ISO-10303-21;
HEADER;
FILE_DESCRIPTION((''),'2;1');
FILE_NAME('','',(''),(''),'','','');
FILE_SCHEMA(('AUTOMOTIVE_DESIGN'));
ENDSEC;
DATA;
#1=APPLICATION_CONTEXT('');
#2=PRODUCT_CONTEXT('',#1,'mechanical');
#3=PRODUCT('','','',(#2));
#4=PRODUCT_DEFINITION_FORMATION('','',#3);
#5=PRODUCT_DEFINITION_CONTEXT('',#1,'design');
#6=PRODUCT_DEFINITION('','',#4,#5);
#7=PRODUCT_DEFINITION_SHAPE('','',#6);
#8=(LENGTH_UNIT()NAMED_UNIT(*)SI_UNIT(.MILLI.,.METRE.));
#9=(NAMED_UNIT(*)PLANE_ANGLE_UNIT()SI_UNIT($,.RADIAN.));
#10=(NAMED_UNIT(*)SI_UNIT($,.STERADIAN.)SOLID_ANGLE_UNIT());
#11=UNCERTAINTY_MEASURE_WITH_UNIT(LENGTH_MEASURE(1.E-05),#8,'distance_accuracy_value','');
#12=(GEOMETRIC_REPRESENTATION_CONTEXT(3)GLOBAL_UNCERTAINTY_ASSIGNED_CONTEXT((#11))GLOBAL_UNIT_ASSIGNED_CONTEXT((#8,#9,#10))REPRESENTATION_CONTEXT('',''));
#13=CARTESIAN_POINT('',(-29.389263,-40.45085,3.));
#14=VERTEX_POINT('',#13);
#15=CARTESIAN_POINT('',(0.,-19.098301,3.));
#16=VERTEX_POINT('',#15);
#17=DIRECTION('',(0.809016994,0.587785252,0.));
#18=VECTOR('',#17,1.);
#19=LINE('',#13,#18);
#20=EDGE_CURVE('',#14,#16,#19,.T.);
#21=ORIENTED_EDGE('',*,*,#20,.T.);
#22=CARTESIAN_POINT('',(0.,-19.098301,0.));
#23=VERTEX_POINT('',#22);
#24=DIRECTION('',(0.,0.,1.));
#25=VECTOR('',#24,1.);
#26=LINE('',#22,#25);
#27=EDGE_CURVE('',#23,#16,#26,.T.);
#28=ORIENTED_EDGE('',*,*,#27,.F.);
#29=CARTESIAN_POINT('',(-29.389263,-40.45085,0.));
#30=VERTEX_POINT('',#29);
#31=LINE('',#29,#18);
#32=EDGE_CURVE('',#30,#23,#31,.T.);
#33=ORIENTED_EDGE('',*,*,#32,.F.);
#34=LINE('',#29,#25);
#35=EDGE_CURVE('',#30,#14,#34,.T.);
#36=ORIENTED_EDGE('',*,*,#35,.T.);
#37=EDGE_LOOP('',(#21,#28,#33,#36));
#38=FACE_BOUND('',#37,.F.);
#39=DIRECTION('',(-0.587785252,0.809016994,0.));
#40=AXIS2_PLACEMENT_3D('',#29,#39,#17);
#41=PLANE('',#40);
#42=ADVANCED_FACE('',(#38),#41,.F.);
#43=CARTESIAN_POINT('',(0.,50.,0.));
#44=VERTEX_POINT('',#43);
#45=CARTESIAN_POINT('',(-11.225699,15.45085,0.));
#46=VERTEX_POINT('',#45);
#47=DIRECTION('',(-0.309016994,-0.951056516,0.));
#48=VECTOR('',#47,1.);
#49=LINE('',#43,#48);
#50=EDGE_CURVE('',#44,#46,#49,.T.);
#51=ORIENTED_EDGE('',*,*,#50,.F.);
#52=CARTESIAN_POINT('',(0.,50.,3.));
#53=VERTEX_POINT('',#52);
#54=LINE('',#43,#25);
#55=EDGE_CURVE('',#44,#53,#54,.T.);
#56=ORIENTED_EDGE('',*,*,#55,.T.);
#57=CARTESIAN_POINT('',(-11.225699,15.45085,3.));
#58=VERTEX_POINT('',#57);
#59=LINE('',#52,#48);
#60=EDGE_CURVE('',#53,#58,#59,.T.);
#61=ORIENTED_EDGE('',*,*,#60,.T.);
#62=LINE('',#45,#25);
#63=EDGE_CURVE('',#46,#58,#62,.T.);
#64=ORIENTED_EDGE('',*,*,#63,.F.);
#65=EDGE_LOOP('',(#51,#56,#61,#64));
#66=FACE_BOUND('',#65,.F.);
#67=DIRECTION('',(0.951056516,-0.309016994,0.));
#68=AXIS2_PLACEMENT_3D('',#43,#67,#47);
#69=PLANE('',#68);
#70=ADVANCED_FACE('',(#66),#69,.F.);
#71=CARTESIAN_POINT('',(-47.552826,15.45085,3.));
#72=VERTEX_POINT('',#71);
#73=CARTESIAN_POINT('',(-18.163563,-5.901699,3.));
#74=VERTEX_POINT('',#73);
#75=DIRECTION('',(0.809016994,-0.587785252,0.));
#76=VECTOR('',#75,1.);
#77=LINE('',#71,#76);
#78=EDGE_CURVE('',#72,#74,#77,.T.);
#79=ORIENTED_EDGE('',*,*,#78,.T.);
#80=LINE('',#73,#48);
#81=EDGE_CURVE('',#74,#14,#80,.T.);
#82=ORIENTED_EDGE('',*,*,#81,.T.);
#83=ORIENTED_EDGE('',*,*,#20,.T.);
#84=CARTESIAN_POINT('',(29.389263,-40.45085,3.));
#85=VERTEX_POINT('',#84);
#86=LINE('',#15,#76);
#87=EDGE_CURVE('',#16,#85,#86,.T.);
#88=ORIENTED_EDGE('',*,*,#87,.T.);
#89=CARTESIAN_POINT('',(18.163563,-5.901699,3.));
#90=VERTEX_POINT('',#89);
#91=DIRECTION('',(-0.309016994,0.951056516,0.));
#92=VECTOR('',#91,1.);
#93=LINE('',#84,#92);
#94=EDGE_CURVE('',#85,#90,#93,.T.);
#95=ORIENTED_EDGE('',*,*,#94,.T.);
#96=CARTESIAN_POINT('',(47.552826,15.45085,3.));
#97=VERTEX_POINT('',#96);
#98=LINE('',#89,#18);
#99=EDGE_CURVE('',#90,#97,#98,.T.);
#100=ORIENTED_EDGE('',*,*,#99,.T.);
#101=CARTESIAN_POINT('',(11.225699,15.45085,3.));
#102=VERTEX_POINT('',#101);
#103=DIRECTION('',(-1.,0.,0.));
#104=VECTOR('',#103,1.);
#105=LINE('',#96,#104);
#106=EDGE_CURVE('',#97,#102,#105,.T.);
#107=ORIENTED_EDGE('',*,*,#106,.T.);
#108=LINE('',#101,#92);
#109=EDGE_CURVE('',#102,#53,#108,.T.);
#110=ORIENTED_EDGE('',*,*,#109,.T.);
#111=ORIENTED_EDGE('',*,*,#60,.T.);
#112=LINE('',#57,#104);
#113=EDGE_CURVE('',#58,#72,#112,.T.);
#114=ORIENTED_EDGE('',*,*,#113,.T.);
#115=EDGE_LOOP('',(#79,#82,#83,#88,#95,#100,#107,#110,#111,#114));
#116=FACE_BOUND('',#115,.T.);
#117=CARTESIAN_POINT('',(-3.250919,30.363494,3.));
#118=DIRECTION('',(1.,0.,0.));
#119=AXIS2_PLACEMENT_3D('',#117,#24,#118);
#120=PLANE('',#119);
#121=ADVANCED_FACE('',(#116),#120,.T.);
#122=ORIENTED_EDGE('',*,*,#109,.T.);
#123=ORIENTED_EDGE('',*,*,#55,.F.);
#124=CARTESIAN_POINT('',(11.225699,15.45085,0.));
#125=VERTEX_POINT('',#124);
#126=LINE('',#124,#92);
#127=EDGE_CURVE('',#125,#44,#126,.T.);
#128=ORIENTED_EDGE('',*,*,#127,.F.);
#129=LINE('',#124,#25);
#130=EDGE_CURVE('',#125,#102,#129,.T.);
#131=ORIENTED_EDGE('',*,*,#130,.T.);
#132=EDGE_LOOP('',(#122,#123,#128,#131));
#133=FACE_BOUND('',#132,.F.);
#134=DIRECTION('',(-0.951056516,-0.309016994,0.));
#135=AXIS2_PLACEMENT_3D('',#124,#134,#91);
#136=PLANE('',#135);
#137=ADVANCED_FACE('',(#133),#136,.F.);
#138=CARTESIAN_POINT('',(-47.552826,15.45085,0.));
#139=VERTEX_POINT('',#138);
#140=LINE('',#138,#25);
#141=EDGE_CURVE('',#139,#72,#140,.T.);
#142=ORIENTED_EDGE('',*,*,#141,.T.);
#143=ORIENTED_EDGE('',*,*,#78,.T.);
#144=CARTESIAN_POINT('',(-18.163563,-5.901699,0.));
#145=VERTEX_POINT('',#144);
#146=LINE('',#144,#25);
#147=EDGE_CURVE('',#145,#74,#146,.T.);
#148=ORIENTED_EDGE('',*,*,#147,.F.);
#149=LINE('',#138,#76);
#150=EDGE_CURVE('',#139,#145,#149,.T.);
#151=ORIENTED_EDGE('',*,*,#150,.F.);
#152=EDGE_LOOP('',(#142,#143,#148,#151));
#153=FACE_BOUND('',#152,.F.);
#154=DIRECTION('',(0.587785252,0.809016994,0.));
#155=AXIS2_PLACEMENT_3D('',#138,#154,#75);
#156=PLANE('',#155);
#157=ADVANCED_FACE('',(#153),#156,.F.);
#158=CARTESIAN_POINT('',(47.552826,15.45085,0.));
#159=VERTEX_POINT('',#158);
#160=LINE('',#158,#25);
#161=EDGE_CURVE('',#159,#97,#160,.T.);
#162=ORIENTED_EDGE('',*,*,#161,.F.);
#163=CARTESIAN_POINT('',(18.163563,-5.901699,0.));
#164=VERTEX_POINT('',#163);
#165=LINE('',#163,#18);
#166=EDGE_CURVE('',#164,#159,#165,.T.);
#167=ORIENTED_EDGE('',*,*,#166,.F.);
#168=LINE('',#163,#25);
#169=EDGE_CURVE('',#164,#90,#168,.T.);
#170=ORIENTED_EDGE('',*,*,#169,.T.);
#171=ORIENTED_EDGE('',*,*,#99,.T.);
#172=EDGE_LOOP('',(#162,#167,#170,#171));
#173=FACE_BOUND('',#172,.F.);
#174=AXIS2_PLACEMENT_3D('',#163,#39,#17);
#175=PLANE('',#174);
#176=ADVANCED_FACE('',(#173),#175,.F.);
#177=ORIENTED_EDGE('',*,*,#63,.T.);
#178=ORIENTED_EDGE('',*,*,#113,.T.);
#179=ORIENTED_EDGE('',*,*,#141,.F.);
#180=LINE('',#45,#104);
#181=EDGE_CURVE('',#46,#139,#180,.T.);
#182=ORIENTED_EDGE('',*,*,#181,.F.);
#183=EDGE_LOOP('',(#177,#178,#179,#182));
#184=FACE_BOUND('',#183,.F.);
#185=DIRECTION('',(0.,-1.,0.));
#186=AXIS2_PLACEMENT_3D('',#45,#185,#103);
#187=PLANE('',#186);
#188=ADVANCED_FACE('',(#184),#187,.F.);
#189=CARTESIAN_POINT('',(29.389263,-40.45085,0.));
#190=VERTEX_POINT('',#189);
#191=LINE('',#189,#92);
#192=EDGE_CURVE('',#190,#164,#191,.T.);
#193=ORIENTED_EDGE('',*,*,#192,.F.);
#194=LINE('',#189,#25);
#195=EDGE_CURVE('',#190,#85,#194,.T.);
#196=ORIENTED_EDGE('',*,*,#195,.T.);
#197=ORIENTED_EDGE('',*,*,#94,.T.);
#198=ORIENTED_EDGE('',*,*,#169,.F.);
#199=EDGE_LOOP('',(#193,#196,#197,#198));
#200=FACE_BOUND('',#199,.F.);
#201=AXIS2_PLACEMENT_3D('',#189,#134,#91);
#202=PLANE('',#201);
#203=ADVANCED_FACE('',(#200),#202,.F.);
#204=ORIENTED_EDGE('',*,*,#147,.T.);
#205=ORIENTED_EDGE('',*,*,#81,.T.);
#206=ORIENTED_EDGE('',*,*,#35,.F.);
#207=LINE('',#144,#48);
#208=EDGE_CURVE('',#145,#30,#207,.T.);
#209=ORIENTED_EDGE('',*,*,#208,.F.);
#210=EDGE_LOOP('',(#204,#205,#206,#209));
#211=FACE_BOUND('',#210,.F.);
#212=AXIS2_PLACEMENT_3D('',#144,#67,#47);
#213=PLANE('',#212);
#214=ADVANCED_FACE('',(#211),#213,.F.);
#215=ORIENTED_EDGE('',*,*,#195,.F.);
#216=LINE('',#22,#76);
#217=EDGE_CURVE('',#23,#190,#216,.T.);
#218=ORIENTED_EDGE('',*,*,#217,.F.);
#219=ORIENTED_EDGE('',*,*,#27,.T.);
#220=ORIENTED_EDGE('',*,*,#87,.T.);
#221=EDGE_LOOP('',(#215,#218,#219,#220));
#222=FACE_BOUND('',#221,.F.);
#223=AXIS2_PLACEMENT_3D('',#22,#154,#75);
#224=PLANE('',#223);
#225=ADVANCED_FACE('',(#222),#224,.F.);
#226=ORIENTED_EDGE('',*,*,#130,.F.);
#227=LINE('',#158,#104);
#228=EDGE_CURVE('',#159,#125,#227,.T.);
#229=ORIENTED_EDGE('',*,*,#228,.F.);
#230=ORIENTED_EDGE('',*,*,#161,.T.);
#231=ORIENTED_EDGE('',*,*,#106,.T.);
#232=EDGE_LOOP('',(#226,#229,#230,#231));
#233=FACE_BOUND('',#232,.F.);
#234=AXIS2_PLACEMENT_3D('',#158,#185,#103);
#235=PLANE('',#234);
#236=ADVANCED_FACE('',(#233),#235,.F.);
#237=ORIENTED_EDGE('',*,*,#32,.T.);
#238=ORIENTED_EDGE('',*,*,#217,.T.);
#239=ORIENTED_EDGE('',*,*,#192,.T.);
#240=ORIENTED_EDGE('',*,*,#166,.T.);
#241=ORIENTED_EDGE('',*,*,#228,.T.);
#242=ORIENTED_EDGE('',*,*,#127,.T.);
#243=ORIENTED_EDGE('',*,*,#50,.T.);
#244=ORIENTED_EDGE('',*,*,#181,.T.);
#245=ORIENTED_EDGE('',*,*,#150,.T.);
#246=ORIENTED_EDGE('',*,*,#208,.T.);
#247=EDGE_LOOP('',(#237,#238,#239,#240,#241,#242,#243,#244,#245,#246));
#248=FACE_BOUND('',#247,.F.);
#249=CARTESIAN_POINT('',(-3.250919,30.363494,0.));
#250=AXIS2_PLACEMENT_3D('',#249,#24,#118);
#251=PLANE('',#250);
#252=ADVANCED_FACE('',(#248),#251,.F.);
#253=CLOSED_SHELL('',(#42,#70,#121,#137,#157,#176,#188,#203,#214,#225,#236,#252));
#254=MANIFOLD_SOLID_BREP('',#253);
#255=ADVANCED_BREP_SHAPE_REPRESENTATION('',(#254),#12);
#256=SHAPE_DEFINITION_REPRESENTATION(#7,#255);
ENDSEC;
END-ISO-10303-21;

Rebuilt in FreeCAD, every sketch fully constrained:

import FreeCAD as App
import Part
import Sketcher
Q = App.Units.Quantity

doc = App.newDocument("Part")
body = doc.addObject("PartDesign::Body", "Body")

# Sketch on XY plane
sketch1 = body.newObject("Sketcher::SketchObject", "Sketch")
sketch1.AttachmentSupport = (doc.getObject("XY_Plane"), [""])
sketch1.MapMode = "FlatFace"
sketch1.addGeometry([
    Part.LineSegment(App.Vector(29, -40, 0), App.Vector(18, -6, 0)),  # 0
    Part.LineSegment(App.Vector(18, -6, 0), App.Vector(48, 15, 0)),  # 1
    Part.LineSegment(App.Vector(48, 15, 0), App.Vector(11, 15, 0)),  # 2
    Part.LineSegment(App.Vector(11, 15, 0), App.Vector(0, 50, 0)),  # 3
    Part.LineSegment(App.Vector(0, 50, 0), App.Vector(-11, 15, 0)),  # 4
    Part.LineSegment(App.Vector(-11, 15, 0), App.Vector(-48, 15, 0)),  # 5
    Part.LineSegment(App.Vector(-48, 15, 0), App.Vector(-18, -6, 0)),  # 6
    Part.LineSegment(App.Vector(-18, -6, 0), App.Vector(-29, -40, 0)),  # 7
    Part.LineSegment(App.Vector(-29, -40, 0), App.Vector(0, -19, 0)),  # 8
    Part.LineSegment(App.Vector(0, -19, 0), App.Vector(29, -40, 0)),  # 9
], False)
sketch1.addConstraint([
    Sketcher.Constraint("Coincident", 0, 2, 1, 1),
    Sketcher.Constraint("Coincident", 1, 2, 2, 1),
    Sketcher.Constraint("Coincident", 2, 2, 3, 1),
    Sketcher.Constraint("Coincident", 3, 2, 4, 1),
    Sketcher.Constraint("Coincident", 4, 2, 5, 1),
    Sketcher.Constraint("Coincident", 5, 2, 6, 1),
    Sketcher.Constraint("Coincident", 6, 2, 7, 1),
    Sketcher.Constraint("Coincident", 7, 2, 8, 1),
    Sketcher.Constraint("Coincident", 8, 2, 9, 1),
    Sketcher.Constraint("Coincident", 9, 2, 0, 1),
    Sketcher.Constraint("Horizontal", 2),
    Sketcher.Constraint("Horizontal", 5),
    Sketcher.Constraint("Symmetric", 2, 2, 4, 2, -2),
    Sketcher.Constraint("Symmetric", 0, 2, 6, 2, -2),
    Sketcher.Constraint("Symmetric", 7, 2, 9, 2, -2),
    Sketcher.Constraint("PointOnObject", 3, 2, -2),
    Sketcher.Constraint("PointOnObject", 8, 2, -2),
    Sketcher.Constraint("Parallel", 0, 3),
    Sketcher.Constraint("Parallel", 1, 8),
    Sketcher.Constraint("Parallel", 6, 9),
    Sketcher.Constraint("Equal", 0, 1),
    Sketcher.Constraint("Equal", 1, 3),
    Sketcher.Constraint("Equal", 7, 8),
    Sketcher.Constraint("Angle", 0, Q("108 deg")),
    Sketcher.Constraint("Angle", 1, Q("36 deg")),
    Sketcher.Constraint("DistanceY", -1, 1, 3, 2, 50.0),
    Sketcher.Constraint("DistanceY", 0, 2, -1, 1, 5.901699),
])
pad1 = body.newObject("PartDesign::Pad", "Pad")
pad1.Profile = sketch1
pad1.Length = 3

doc.recompute()
